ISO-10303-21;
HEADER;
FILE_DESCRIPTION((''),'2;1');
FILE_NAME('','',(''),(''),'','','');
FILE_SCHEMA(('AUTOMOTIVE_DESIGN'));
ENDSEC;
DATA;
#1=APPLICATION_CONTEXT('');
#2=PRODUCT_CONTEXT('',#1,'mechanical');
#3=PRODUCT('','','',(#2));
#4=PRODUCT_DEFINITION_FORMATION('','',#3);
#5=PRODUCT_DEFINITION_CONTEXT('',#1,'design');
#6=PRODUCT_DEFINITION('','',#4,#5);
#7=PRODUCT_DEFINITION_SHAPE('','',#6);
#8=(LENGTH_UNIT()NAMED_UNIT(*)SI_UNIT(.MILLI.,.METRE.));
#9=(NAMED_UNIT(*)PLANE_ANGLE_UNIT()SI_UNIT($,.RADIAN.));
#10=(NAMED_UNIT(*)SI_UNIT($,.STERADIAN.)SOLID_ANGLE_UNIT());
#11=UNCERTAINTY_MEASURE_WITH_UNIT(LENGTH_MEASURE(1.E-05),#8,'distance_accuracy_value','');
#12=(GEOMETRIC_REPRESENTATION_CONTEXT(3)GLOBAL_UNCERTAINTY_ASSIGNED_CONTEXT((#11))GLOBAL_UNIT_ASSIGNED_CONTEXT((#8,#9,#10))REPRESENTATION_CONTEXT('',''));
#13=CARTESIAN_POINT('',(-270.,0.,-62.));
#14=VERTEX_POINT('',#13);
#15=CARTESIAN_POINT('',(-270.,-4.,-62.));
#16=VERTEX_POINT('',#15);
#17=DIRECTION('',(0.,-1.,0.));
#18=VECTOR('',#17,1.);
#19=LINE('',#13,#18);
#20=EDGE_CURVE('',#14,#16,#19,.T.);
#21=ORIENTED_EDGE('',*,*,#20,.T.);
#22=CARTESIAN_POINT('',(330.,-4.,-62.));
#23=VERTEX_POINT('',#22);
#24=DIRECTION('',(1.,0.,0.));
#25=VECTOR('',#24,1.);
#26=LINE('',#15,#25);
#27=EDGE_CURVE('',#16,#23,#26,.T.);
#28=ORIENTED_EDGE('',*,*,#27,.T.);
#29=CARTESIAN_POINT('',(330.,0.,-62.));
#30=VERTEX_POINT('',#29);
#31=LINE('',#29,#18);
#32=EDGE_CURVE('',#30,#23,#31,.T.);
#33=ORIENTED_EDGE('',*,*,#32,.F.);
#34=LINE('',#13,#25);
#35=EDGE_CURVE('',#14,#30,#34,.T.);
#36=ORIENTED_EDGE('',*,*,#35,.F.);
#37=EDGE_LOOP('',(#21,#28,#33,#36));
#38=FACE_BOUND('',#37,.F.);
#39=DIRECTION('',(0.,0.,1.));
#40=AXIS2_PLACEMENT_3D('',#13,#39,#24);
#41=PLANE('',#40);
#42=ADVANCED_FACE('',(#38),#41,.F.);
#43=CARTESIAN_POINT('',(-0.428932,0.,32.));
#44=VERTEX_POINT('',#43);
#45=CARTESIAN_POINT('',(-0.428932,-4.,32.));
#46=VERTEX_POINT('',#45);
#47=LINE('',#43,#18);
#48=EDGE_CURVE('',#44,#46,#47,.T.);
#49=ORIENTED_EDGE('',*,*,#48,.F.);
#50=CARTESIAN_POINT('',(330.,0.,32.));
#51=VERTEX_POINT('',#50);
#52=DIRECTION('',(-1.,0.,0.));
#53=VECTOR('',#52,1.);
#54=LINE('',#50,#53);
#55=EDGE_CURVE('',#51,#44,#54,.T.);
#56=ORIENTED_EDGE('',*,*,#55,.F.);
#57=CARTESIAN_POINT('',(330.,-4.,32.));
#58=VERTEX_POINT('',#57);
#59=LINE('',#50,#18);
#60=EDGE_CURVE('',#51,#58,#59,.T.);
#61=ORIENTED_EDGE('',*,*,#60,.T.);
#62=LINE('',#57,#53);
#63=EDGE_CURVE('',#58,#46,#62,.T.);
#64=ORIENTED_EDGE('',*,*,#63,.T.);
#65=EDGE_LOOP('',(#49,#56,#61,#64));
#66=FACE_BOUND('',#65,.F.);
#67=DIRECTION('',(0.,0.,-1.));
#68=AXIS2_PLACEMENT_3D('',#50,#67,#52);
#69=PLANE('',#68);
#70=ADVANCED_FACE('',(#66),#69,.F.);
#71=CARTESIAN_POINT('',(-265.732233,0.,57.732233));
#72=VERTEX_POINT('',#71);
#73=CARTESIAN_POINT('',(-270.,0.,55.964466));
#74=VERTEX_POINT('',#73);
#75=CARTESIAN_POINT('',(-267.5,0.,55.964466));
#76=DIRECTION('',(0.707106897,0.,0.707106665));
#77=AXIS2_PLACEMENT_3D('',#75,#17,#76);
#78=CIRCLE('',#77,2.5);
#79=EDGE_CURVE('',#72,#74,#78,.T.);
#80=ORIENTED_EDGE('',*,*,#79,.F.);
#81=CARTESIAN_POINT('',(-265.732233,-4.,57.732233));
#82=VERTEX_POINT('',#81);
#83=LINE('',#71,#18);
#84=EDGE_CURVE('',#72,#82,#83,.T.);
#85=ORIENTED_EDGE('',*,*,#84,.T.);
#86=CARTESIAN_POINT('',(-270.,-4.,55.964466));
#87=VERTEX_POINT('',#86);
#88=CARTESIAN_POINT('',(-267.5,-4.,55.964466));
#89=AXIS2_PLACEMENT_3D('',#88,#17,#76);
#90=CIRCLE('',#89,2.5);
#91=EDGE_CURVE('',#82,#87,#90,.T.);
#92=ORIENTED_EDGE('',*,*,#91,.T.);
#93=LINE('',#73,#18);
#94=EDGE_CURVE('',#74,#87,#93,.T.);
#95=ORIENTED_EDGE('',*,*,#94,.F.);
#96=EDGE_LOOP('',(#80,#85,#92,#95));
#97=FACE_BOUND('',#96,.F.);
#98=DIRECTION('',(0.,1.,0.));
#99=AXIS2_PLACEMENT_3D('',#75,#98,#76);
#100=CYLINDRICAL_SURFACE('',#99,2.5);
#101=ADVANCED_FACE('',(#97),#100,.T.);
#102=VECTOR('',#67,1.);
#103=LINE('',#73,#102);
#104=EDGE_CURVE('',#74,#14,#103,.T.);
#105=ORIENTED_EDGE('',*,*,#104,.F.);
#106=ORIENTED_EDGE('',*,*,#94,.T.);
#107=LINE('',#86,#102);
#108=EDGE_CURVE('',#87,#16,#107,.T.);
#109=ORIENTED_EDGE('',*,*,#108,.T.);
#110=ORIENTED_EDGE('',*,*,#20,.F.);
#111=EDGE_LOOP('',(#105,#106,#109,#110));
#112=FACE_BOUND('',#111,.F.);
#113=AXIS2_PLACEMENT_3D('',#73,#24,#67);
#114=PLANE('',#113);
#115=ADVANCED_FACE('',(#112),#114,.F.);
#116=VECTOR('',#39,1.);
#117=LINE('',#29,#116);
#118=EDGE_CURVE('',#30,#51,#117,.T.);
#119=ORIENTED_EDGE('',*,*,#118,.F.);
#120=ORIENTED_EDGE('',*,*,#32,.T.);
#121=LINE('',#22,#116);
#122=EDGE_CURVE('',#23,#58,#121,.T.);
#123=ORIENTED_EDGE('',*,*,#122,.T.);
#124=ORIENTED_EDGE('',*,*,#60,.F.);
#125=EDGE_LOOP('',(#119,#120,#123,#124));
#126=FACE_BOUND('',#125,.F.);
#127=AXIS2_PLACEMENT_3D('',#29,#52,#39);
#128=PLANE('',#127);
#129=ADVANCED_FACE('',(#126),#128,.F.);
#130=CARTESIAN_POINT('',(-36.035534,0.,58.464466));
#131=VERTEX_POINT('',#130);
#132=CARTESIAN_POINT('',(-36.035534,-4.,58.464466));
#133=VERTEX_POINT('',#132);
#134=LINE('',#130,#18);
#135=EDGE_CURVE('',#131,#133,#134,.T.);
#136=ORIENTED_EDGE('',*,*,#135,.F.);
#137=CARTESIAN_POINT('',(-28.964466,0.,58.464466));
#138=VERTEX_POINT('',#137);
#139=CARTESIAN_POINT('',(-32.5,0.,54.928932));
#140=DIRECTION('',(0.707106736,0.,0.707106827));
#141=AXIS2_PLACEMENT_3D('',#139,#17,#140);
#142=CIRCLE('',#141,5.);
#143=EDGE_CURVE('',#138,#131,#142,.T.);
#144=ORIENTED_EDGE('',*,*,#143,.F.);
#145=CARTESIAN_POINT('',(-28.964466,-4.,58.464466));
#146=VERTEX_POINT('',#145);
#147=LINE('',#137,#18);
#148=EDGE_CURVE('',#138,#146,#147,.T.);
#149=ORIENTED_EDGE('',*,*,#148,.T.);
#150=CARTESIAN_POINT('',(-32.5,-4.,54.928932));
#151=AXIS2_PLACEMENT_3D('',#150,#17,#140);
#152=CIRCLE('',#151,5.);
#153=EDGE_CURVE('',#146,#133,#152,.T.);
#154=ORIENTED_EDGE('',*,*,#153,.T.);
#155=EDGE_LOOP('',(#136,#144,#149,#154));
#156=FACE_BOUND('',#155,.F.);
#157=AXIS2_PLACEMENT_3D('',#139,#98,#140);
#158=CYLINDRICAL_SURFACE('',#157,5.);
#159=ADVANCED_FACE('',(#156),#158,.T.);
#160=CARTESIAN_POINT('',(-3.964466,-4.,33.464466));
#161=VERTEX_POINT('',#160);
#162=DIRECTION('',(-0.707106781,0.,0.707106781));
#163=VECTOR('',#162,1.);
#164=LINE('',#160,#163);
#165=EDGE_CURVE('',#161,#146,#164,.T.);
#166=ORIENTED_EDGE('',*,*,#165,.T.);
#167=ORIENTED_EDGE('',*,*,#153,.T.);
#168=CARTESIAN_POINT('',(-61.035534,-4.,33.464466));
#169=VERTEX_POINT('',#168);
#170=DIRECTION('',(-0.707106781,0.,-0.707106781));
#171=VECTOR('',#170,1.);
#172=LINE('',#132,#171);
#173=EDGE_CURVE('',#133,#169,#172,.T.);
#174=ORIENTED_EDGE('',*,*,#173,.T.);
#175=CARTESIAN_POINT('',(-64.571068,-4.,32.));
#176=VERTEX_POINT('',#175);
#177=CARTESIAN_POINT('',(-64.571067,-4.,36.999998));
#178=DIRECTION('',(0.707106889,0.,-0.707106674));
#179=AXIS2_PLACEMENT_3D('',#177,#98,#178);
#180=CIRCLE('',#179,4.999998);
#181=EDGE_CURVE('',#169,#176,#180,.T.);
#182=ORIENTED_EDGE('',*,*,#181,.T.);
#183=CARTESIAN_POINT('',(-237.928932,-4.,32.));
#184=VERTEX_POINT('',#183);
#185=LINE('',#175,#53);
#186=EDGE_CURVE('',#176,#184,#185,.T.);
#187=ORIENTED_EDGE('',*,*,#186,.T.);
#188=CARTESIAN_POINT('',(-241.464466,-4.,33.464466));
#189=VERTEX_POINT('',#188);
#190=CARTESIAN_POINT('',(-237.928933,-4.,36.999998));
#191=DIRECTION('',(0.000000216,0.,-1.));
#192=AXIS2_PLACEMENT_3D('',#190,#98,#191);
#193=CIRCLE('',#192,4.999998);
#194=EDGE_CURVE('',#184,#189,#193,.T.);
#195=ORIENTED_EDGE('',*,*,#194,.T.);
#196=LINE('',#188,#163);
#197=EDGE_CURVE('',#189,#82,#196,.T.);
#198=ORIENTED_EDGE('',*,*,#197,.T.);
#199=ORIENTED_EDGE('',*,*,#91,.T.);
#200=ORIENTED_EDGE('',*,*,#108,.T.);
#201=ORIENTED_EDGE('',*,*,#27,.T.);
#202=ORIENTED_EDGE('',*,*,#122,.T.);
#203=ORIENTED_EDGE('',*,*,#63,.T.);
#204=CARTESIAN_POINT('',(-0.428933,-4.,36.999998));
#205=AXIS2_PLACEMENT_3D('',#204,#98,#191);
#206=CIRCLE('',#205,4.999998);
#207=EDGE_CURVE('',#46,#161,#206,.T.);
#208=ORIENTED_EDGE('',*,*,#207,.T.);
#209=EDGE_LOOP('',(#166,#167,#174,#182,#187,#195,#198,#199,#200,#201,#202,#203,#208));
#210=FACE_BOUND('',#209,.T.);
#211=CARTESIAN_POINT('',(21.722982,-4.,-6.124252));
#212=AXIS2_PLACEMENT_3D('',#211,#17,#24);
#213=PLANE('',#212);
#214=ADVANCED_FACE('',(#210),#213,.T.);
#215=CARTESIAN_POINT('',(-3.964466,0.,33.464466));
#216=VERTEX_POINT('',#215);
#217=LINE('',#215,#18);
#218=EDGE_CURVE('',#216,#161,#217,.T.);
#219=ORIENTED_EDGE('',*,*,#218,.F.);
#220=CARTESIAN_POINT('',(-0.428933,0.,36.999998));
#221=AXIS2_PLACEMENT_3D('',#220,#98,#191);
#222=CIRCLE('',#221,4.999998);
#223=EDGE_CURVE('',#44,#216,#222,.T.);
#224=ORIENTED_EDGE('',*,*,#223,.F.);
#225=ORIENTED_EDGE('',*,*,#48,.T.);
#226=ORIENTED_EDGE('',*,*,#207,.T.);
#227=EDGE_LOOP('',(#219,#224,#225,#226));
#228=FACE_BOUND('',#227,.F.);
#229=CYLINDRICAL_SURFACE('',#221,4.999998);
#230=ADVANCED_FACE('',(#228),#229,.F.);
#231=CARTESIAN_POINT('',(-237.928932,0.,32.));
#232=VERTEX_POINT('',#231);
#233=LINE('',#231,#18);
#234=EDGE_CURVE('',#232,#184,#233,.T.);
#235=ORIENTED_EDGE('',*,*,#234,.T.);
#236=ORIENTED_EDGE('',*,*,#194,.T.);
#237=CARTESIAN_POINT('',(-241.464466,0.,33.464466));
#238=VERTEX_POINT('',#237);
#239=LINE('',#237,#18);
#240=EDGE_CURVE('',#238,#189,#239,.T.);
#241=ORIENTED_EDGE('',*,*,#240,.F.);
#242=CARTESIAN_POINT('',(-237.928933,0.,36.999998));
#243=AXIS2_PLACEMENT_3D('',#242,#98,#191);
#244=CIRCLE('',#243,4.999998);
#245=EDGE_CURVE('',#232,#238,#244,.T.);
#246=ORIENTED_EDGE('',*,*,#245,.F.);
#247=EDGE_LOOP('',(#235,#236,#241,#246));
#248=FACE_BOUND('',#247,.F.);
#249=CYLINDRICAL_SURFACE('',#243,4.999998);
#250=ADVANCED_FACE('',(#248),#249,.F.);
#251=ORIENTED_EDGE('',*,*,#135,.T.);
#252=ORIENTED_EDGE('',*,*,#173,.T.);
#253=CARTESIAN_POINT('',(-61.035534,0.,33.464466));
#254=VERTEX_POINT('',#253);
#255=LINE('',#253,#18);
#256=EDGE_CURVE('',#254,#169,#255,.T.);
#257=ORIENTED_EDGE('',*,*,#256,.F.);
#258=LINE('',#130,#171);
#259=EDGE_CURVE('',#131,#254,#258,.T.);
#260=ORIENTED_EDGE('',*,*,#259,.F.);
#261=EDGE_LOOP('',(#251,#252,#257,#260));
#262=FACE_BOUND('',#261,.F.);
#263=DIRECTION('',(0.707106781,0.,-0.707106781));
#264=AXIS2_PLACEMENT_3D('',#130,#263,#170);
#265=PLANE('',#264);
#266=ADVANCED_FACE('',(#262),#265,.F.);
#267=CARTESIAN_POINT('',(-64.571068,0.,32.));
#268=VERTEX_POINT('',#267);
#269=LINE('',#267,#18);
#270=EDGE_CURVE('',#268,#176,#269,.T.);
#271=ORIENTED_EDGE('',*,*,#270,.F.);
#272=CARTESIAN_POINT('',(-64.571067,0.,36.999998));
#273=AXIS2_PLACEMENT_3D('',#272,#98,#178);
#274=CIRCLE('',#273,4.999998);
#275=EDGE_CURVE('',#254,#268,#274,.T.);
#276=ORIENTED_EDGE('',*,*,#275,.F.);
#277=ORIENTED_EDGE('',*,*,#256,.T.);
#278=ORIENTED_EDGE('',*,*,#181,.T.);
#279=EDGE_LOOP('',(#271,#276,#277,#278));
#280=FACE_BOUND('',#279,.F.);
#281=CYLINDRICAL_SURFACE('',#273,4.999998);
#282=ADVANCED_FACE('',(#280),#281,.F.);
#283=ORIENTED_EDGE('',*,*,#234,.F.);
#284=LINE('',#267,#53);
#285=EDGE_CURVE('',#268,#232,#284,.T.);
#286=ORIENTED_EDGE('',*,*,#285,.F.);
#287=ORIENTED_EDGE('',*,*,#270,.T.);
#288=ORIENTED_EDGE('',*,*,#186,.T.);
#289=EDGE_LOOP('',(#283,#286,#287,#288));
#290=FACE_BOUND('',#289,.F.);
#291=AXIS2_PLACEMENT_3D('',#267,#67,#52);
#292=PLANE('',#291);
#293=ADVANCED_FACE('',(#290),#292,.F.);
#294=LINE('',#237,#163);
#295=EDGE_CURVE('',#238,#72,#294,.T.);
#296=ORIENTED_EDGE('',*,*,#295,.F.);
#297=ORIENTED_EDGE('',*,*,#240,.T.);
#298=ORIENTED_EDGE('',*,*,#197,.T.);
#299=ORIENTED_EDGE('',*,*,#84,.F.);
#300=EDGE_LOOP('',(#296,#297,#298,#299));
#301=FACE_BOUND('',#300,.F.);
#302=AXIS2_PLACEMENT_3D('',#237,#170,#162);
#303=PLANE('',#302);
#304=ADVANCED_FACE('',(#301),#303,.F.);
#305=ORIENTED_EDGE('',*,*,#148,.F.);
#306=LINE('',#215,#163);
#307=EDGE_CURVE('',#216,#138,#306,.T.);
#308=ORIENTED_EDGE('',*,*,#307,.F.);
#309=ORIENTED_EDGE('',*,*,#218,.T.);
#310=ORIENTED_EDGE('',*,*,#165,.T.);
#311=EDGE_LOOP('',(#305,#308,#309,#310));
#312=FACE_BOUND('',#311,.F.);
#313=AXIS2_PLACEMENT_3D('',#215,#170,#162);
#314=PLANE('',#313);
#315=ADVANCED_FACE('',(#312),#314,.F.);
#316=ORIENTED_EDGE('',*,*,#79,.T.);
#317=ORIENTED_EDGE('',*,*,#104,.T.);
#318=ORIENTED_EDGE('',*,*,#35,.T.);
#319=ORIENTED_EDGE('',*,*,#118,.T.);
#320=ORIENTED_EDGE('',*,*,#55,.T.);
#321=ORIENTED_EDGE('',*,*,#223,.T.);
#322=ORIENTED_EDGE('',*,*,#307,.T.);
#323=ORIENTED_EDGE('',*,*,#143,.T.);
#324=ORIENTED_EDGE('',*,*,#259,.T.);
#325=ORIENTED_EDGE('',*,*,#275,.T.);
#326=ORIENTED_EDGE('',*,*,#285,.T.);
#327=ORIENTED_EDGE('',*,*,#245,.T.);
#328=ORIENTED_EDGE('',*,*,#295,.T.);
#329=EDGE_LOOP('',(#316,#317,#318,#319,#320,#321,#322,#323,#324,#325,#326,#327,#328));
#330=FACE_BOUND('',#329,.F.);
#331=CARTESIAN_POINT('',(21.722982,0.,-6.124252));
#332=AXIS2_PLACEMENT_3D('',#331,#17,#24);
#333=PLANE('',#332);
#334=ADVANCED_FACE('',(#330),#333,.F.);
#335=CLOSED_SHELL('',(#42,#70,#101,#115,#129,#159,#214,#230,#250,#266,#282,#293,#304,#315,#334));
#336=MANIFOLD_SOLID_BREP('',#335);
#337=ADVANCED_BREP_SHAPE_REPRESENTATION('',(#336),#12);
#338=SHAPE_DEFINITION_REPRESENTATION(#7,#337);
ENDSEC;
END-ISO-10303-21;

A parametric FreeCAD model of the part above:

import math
import FreeCAD as App
import Part
import Sketcher
from FreeCAD import Vector
Q = App.Units.Quantity

doc = App.newDocument("Part")
params = doc.addObject("Spreadsheet::Sheet", "Params")
for row, (alias, value) in enumerate([
    ("sketch1_radius", "5 mm"),
    ("sketch1_radius2", "2.5 mm"),
    ("sketch1_width", "600 mm"),
    ("sketch1_height", "94 mm"),
    ("pad1_length", "4 mm"),
], start=1):
    params.set(f"A{row}", alias)
    params.set(f"B{row}", "=" + value)
    params.setAlias(f"B{row}", alias)

body = doc.addObject("PartDesign::Body", "Body")

sketch1 = body.newObject("Sketcher::SketchObject", "Sketch")
sketch1.AttachmentSupport = (doc.getObject("XZ_Plane"), [""])
sketch1.MapMode = "FlatFace"
sketch1.addGeometry(Part.LineSegment(Vector(330, 32, 0), Vector(-0.428932, 32, 0)), False)
sketch1.addGeometry(Part.ArcOfCircle(Part.Circle(Vector(-0.428933, 36.999998, 0), Vector(0, 0, 1), 4.999998), math.radians(-135.000009), math.radians(-89.999988)), False)
sketch1.addGeometry(Part.LineSegment(Vector(-3.964466, 33.464466, 0), Vector(-28.964466, 58.464466, 0)), False)
sketch1.addGeometry(Part.ArcOfCircle(Part.Circle(Vector(-32.5, 54.928932, 0), Vector(0, 0, 1), 5), math.radians(45.000004), math.radians(134.999996)), False)
sketch1.addGeometry(Part.LineSegment(Vector(-36.035534, 58.464466, 0), Vector(-61.035534, 33.464466, 0)), False)
sketch1.addGeometry(Part.ArcOfCircle(Part.Circle(Vector(-64.571067, 36.999998, 0), Vector(0, 0, 1), 4.999998), math.radians(-90.000012), math.radians(-44.999991)), False)
sketch1.addGeometry(Part.LineSegment(Vector(-64.571068, 32, 0), Vector(-237.928932, 32, 0)), False)
sketch1.addGeometry(Part.ArcOfCircle(Part.Circle(Vector(-237.928933, 36.999998, 0), Vector(0, 0, 1), 4.999998), math.radians(-135.000009), math.radians(-89.999988)), False)
sketch1.addGeometry(Part.LineSegment(Vector(-241.464466, 33.464466, 0), Vector(-265.732233, 57.732233, 0)), False)
sketch1.addGeometry(Part.ArcOfCircle(Part.Circle(Vector(-267.5, 55.964466, 0), Vector(0, 0, 1), 2.5), math.radians(44.999991), math.radians(180.00001)), False)
sketch1.addGeometry(Part.LineSegment(Vector(-270, 55.964466, 0), Vector(-270, -62, 0)), False)
sketch1.addGeometry(Part.LineSegment(Vector(-270, -62, 0), Vector(330, -62, 0)), False)
sketch1.addGeometry(Part.LineSegment(Vector(330, -62, 0), Vector(330, 32, 0)), False)
sketch1.addConstraint(Sketcher.Constraint("Tangent", 0, 2, 1, 2))
sketch1.addConstraint(Sketcher.Constraint("Tangent", 1, 1, 2, 1))
sketch1.addConstraint(Sketcher.Constraint("Tangent", 2, 2, 3, 1))
sketch1.addConstraint(Sketcher.Constraint("Tangent", 3, 2, 4, 1))
sketch1.addConstraint(Sketcher.Constraint("Tangent", 4, 2, 5, 2))
sketch1.addConstraint(Sketcher.Constraint("Tangent", 5, 1, 6, 1))
sketch1.addConstraint(Sketcher.Constraint("Tangent", 6, 2, 7, 2))
sketch1.addConstraint(Sketcher.Constraint("Tangent", 7, 1, 8, 1))
sketch1.addConstraint(Sketcher.Constraint("Tangent", 8, 2, 9, 1))
sketch1.addConstraint(Sketcher.Constraint("Tangent", 9, 2, 10, 1))
sketch1.addConstraint(Sketcher.Constraint("Coincident", 10, 2, 11, 1))
sketch1.addConstraint(Sketcher.Constraint("Coincident", 11, 2, 12, 1))
sketch1.addConstraint(Sketcher.Constraint("Coincident", 12, 2, 0, 1))
sketch1.addConstraint(Sketcher.Constraint("Horizontal", 0))
sketch1.addConstraint(Sketcher.Constraint("Horizontal", 6))
sketch1.addConstraint(Sketcher.Constraint("Vertical", 10))
sketch1.addConstraint(Sketcher.Constraint("Horizontal", 11))
sketch1.addConstraint(Sketcher.Constraint("Vertical", 12))
sketch1.addConstraint(Sketcher.Constraint("Equal", 1, 5))
sketch1.addConstraint(Sketcher.Constraint("Equal", 5, 7))
sketch1.addConstraint(Sketcher.Constraint("Perpendicular", 2, 4))
sketch1.addConstraint(Sketcher.Constraint("Perpendicular", 4, 8))
sketch1.addConstraint(Sketcher.Constraint("Horizontal", 1, 3, 5, 3))
sketch1.addConstraint(Sketcher.Constraint("Horizontal", 2, 2, 3, 2))
sketch1.addConstraint(Sketcher.Constraint("Radius", 3, Q("5 mm")))
sketch1.addConstraint(Sketcher.Constraint("Radius", 9, Q("2.5 mm")))
sketch1.addConstraint(Sketcher.Constraint("DistanceX", 11, 1, 11, 2, Q("600 mm")))
sketch1.addConstraint(Sketcher.Constraint("DistanceY", 12, 1, 12, 2, Q("94 mm")))
sketch1.addConstraint(Sketcher.Constraint("DistanceY", -1, 1, 0, 2, Q("32 mm")))
sketch1.addConstraint(Sketcher.Constraint("DistanceX", 9, 2, -1, 1, Q("270 mm")))
sketch1.addConstraint(Sketcher.Constraint("DistanceX", 9, 3, 3, 3, Q("235 mm")))
sketch1.addConstraint(Sketcher.Constraint("DistanceX", 2, 2, 1, 1, Q("25 mm")))
sketch1.addConstraint(Sketcher.Constraint("DistanceX", 7, 3, 1, 3, Q("237.5 mm")))
sketch1.addConstraint(Sketcher.Constraint("Radius", 1, Q("4.999998 mm")))
sketch1.setExpression("Constraints[24]", "Params.sketch1_radius")
sketch1.setExpression("Constraints[25]", "Params.sketch1_radius2")
sketch1.setExpression("Constraints[26]", "Params.sketch1_width")
sketch1.setExpression("Constraints[27]", "Params.sketch1_height")
pad1 = body.newObject("PartDesign::Pad", "Pad")
pad1.Profile = sketch1
pad1.setExpression("Length", "Params.pad1_length")

doc.recompute()
